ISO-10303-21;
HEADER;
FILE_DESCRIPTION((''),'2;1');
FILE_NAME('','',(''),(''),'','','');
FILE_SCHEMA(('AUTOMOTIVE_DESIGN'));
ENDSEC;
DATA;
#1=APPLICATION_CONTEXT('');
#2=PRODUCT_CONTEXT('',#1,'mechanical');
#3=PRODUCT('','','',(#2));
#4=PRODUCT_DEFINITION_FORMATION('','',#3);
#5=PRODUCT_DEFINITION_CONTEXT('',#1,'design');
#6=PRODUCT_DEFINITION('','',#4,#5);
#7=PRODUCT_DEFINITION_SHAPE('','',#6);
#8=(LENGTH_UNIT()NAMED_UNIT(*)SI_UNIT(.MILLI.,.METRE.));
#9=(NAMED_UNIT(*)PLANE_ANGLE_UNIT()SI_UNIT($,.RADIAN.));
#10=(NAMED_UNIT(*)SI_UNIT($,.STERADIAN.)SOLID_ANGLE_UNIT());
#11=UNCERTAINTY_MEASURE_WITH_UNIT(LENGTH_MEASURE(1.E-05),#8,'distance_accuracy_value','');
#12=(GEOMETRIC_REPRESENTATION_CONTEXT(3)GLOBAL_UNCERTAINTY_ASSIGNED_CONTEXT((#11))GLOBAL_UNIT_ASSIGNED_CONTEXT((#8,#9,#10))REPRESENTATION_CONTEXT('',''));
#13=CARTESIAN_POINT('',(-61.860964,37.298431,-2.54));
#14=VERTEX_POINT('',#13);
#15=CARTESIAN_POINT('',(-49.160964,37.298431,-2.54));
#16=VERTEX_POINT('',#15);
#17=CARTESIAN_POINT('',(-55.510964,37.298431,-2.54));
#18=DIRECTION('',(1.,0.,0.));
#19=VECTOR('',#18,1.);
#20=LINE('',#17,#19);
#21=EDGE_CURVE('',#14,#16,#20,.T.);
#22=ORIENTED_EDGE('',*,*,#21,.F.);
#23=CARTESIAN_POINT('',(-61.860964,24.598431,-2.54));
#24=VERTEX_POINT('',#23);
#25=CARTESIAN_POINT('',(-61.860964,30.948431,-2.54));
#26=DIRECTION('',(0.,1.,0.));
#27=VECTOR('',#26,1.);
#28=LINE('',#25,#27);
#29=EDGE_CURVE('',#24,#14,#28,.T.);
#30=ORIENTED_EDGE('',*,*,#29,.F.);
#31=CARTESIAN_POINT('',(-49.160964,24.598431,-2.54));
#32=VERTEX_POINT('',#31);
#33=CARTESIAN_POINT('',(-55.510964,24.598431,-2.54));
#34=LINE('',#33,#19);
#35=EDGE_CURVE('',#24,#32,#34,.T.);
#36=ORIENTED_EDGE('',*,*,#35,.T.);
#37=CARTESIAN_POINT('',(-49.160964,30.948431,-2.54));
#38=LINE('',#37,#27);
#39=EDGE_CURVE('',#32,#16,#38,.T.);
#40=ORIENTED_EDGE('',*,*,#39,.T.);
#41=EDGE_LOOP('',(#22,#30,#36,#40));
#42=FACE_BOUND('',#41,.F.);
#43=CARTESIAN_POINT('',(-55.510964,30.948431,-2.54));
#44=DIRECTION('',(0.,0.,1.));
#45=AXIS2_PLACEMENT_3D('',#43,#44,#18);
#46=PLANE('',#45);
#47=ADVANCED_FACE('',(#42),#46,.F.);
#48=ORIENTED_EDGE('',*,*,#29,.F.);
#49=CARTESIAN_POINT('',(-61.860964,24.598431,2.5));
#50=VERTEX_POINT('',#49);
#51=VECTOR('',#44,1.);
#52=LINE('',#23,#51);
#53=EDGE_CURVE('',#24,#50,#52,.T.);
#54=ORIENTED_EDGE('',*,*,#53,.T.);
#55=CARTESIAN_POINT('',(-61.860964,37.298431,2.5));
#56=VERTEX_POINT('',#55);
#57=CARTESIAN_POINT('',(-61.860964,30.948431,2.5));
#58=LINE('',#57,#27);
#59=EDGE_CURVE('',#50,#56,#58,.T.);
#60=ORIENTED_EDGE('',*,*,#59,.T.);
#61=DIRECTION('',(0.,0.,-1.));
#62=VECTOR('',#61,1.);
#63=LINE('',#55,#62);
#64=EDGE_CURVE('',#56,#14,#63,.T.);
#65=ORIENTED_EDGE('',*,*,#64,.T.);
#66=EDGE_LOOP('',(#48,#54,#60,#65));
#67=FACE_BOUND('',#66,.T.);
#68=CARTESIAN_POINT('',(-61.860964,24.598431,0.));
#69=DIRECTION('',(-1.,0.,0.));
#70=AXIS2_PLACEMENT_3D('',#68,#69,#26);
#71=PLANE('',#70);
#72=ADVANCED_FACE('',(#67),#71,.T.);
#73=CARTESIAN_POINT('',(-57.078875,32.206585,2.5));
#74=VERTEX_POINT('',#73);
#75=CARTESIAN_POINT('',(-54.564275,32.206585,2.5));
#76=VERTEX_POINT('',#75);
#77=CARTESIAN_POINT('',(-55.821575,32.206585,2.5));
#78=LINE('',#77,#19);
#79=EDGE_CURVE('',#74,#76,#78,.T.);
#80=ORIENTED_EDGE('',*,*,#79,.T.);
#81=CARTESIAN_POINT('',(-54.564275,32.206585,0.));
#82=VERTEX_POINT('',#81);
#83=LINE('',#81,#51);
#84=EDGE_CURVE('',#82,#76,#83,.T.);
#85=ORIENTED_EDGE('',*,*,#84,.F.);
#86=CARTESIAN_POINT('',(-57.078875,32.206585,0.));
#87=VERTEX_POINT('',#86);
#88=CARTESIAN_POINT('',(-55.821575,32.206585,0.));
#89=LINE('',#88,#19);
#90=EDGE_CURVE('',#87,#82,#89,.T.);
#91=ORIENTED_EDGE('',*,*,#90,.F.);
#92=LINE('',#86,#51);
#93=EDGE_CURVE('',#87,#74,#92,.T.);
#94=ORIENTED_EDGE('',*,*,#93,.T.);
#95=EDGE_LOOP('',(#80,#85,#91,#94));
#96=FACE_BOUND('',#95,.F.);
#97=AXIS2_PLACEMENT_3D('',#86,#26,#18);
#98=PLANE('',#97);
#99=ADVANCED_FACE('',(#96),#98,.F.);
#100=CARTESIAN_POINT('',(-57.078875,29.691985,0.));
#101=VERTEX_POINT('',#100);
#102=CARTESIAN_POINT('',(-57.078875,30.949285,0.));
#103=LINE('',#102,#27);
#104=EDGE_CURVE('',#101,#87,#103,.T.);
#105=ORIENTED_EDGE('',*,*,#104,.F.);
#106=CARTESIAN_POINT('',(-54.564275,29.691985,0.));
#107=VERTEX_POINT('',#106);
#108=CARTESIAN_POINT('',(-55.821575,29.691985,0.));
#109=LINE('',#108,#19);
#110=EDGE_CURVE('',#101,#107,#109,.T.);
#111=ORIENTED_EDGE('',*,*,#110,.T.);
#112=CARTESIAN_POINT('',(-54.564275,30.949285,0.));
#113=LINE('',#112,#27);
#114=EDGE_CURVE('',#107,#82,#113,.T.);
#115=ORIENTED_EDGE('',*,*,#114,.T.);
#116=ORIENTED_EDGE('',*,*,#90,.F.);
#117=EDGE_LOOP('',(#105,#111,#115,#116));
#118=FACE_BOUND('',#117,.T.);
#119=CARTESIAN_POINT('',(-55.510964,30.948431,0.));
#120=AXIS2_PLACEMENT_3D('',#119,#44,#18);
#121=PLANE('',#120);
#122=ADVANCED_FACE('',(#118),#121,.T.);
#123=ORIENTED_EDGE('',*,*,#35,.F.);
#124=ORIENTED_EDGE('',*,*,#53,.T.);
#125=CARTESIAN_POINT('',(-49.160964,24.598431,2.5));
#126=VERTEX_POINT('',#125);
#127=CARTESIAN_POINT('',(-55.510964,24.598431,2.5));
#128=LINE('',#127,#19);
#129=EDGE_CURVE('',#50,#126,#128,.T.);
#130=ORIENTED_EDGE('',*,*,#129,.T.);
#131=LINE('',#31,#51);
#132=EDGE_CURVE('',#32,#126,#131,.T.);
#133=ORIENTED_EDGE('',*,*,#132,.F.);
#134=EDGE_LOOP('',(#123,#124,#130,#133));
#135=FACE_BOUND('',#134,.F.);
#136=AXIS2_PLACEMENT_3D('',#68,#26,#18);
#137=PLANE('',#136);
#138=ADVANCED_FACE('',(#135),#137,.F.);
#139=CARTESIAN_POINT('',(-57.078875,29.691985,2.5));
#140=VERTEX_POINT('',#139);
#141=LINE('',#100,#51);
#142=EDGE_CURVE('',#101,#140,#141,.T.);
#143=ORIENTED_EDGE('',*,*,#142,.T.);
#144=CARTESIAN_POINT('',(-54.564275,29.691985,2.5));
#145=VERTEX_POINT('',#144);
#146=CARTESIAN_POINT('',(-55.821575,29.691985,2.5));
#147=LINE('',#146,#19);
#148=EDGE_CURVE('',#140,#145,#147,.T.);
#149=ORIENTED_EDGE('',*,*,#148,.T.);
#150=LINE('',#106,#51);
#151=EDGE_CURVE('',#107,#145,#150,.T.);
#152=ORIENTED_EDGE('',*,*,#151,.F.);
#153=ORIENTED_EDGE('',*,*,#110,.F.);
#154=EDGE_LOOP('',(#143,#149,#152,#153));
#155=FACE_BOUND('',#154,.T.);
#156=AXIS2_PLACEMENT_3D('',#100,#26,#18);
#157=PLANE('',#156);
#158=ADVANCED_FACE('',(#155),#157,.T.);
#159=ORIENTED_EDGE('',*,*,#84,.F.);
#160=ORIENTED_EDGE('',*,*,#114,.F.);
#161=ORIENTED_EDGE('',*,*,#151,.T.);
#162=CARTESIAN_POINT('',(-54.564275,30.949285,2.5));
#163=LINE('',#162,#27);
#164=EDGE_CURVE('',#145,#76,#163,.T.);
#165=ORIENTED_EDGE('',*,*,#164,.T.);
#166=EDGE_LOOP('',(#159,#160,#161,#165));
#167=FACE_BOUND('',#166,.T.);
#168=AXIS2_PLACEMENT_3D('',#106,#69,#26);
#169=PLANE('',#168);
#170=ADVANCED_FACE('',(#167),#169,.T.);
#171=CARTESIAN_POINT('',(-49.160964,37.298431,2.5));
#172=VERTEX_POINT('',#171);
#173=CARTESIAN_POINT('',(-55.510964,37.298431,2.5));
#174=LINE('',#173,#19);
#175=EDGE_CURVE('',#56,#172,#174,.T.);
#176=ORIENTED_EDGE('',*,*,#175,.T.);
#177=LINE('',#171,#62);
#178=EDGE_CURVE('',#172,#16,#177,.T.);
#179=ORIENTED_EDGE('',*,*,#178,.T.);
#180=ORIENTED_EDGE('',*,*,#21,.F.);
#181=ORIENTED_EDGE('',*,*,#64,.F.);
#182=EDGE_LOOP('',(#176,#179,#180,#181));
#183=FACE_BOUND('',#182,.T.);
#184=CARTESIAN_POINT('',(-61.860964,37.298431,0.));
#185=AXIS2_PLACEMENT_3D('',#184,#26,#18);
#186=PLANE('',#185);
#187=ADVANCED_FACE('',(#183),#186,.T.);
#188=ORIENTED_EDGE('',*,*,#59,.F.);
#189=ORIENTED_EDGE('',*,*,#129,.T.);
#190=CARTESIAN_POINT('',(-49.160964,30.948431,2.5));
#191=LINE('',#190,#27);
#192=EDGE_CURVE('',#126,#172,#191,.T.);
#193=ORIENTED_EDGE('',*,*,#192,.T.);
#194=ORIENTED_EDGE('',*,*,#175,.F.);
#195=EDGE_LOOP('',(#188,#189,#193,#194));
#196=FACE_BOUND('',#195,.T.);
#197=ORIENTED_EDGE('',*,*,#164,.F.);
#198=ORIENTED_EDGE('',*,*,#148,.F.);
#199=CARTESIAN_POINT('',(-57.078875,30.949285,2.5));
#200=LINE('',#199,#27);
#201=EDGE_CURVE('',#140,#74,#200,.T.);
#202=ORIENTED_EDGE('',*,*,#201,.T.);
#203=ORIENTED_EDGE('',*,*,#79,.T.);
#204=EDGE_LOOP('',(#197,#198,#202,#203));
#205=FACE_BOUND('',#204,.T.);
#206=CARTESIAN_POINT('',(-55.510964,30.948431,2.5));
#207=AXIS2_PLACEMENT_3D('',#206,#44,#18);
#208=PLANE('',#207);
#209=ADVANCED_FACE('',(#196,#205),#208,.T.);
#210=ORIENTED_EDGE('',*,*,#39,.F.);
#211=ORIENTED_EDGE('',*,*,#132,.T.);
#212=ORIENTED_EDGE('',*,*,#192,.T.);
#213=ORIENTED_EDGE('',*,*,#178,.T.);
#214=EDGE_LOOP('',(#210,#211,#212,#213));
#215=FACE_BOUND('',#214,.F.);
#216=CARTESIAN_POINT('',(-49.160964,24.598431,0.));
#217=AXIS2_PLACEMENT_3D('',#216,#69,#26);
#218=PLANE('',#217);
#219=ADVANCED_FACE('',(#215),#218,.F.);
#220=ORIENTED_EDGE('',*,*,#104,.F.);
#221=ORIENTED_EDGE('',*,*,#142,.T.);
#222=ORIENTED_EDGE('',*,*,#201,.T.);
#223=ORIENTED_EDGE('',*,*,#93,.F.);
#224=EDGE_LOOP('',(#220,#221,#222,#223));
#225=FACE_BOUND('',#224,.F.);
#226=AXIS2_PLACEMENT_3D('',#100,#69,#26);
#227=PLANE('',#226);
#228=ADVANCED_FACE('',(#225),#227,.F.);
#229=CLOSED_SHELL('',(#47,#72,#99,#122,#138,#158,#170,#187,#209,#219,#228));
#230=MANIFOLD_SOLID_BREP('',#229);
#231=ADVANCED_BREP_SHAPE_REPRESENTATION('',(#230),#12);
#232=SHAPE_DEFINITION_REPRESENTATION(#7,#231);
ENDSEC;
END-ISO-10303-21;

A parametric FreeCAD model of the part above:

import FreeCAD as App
import Part
import Sketcher
from FreeCAD import Vector
Q = App.Units.Quantity

doc = App.newDocument("Part")
body = doc.addObject("PartDesign::Body", "Body")

sketch1 = body.newObject("Sketcher::SketchObject", "Sketch")
sketch1.AttachmentSupport = (doc.getObject("XY_Plane"), [""])
sketch1.MapMode = "FlatFace"
sketch1.addGeometry([
    Part.LineSegment(Vector(-61.860964, 37.298431, 0), Vector(-61.860964, 24.598431, 0)),
    Part.LineSegment(Vector(-61.860964, 24.598431, 0), Vector(-49.160964, 24.598431, 0)),
    Part.LineSegment(Vector(-49.160964, 24.598431, 0), Vector(-49.160964, 37.298431, 0)),
    Part.LineSegment(Vector(-49.160964, 37.298431, 0), Vector(-61.860964, 37.298431, 0)),
], False)
sketch1.addConstraint([
    Sketcher.Constraint("Coincident", 0, 2, 1, 1),
    Sketcher.Constraint("Coincident", 1, 2, 2, 1),
    Sketcher.Constraint("Coincident", 2, 2, 3, 1),
    Sketcher.Constraint("Coincident", 3, 2, 0, 1),
    Sketcher.Constraint("Vertical", 0),
    Sketcher.Constraint("Horizontal", 1),
    Sketcher.Constraint("Vertical", 2),
    Sketcher.Constraint("Horizontal", 3),
    Sketcher.Constraint("Equal", 3, 0),
    Sketcher.Constraint("DistanceX", 1, 1, 1, 2, Q("0.5 in")),
    Sketcher.Constraint("DistanceY", -1, 1, 0, 2, 24.598431),
    Sketcher.Constraint("DistanceX", 0, 2, -1, 1, 61.860964),
])
pad1 = body.newObject("PartDesign::Pad", "Pad")
pad1.Profile = sketch1
pad1.Length = Q("0.1 in")
pad1.Reversed = True

sketch2 = body.newObject("Sketcher::SketchObject", "Sketch001")
sketch2.AttachmentSupport = (doc.getObject("XY_Plane"), [""])
sketch2.MapMode = "FlatFace"
sketch2.addGeometry([
    Part.LineSegment(Vector(-61.860964, 37.298431, 0), Vector(-61.860964, 24.598431, 0)),
    Part.LineSegment(Vector(-61.860964, 24.598431, 0), Vector(-49.160964, 24.598431, 0)),
    Part.LineSegment(Vector(-49.160964, 24.598431, 0), Vector(-49.160964, 37.298431, 0)),
    Part.LineSegment(Vector(-49.160964, 37.298431, 0), Vector(-61.860964, 37.298431, 0)),
    Part.LineSegment(Vector(-54.564275, 29.691985, 0), Vector(-57.078875, 29.691985, 0)),
    Part.LineSegment(Vector(-57.078875, 29.691985, 0), Vector(-57.078875, 32.206585, 0)),
    Part.LineSegment(Vector(-57.078875, 32.206585, 0), Vector(-54.564275, 32.206585, 0)),
    Part.LineSegment(Vector(-54.564275, 32.206585, 0), Vector(-54.564275, 29.691985, 0)),
], False)
sketch2.addConstraint([
    Sketcher.Constraint("Coincident", 0, 2, 1, 1),
    Sketcher.Constraint("Coincident", 1, 2, 2, 1),
    Sketcher.Constraint("Coincident", 2, 2, 3, 1),
    Sketcher.Constraint("Coincident", 3, 2, 0, 1),
    Sketcher.Constraint("Coincident", 4, 2, 5, 1),
    Sketcher.Constraint("Coincident", 5, 2, 6, 1),
    Sketcher.Constraint("Coincident", 6, 2, 7, 1),
    Sketcher.Constraint("Coincident", 7, 2, 4, 1),
    Sketcher.Constraint("Vertical", 0),
    Sketcher.Constraint("Horizontal", 1),
    Sketcher.Constraint("Vertical", 2),
    Sketcher.Constraint("Horizontal", 3),
    Sketcher.Constraint("Horizontal", 4),
    Sketcher.Constraint("Vertical", 5),
    Sketcher.Constraint("Horizontal", 6),
    Sketcher.Constraint("Vertical", 7),
    Sketcher.Constraint("Equal", 3, 0),
    Sketcher.Constraint("Equal", 6, 5),
    Sketcher.Constraint("DistanceX", 1, 1, 1, 2, Q("0.5 in")),
    Sketcher.Constraint("DistanceX", 4, 2, 4, 1, Q("0.099 in")),
    Sketcher.Constraint("DistanceX", 4, 2, -1, 1, Q("2.2471998 in")),
    Sketcher.Constraint("DistanceY", -1, 1, 0, 2, 24.598431),
    Sketcher.Constraint("DistanceX", 0, 2, 4, 2, 4.782089),
    Sketcher.Constraint("DistanceY", -1, 1, 4, 2, 29.691985),
])
pad2 = body.newObject("PartDesign::Pad", "Pad001")
pad2.Profile = sketch2
pad2.Length = 2.5

doc.recompute()
